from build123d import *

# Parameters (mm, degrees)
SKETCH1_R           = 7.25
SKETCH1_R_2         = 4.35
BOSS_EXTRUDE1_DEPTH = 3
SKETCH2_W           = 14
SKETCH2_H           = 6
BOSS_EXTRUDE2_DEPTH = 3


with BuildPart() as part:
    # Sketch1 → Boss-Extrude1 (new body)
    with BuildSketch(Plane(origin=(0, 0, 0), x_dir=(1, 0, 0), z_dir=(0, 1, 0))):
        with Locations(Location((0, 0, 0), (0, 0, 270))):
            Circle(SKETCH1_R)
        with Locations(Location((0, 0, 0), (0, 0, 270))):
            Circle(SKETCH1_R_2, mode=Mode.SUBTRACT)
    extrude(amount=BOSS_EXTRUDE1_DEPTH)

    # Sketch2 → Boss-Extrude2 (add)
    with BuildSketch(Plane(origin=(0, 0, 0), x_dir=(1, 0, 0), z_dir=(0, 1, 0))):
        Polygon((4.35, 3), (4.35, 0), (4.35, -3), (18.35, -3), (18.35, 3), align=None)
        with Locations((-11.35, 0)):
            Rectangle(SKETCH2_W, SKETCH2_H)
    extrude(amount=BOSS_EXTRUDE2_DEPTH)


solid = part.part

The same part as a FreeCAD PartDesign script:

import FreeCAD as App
import Part
import Sketcher
Q = App.Units.Quantity

doc = App.newDocument("Part")
body = doc.addObject("PartDesign::Body", "Body")

# Sketch on XZ plane
sketch1 = body.newObject("Sketcher::SketchObject", "Sketch")
sketch1.AttachmentSupport = (doc.getObject("XZ_Plane"), [""])
sketch1.MapMode = "FlatFace"
sketch1.addGeometry([
    Part.Circle(App.Vector(0, 0, 0), App.Vector(0, 0, 1), 7.2),
    Part.Circle(App.Vector(0, 0, 0), App.Vector(0, 0, 1), 4.3),
], False)
sketch1.addConstraint([
    Sketcher.Constraint("Coincident", 0, 3, -1, 1),
    Sketcher.Constraint("Coincident", 1, 3, -1, 1),
    Sketcher.Constraint("Diameter", 0, Q("14.5 mm")),
    Sketcher.Constraint("Diameter", 1, Q("8.7 mm")),
])
pad1 = body.newObject("PartDesign::Pad", "Pad")
pad1.Profile = sketch1
pad1.Length = 3
pad1.Reversed = True

# Sketch on XZ plane
sketch2 = body.newObject("Sketcher::SketchObject", "Sketch001")
sketch2.AttachmentSupport = (doc.getObject("XZ_Plane"), [""])
sketch2.MapMode = "FlatFace"
sketch2.addGeometry([
    Part.LineSegment(App.Vector(4, -3, 0), App.Vector(4, 3, 0)),  # 0
    Part.LineSegment(App.Vector(4, 3, 0), App.Vector(18, 3, 0)),  # 1
    Part.LineSegment(App.Vector(18, 3, 0), App.Vector(18, -3, 0)),  # 2
    Part.LineSegment(App.Vector(18, -3, 0), App.Vector(4, -3, 0)),  # 3
    Part.LineSegment(App.Vector(-18, -3, 0), App.Vector(-18, 3, 0)),  # 4
    Part.LineSegment(App.Vector(-18, 3, 0), App.Vector(-4, 3, 0)),  # 5
    Part.LineSegment(App.Vector(-4, 3, 0), App.Vector(-4, -3, 0)),  # 6
    Part.LineSegment(App.Vector(-4, -3, 0), App.Vector(-18, -3, 0)),  # 7
], False)
sketch2.addConstraint([
    Sketcher.Constraint("Coincident", 0, 2, 1, 1),
    Sketcher.Constraint("Coincident", 1, 2, 2, 1),
    Sketcher.Constraint("Coincident", 2, 2, 3, 1),
    Sketcher.Constraint("Coincident", 3, 2, 0, 1),
    Sketcher.Constraint("Coincident", 4, 2, 5, 1),
    Sketcher.Constraint("Coincident", 5, 2, 6, 1),
    Sketcher.Constraint("Coincident", 6, 2, 7, 1),
    Sketcher.Constraint("Coincident", 7, 2, 4, 1),
    Sketcher.Constraint("Vertical", 0),
    Sketcher.Constraint("Horizontal", 1),
    Sketcher.Constraint("Vertical", 2),
    Sketcher.Constraint("Horizontal", 3),
    Sketcher.Constraint("Vertical", 4),
    Sketcher.Constraint("Horizontal", 5),
    Sketcher.Constraint("Vertical", 6),
    Sketcher.Constraint("Horizontal", 7),
    Sketcher.Constraint("Symmetric", 2, 2, 4, 2, -1, 1),
    Sketcher.Constraint("Symmetric", 0, 2, 6, 2, -1, 1),
    Sketcher.Constraint("Horizontal", 1, 2, 4, 2),
    Sketcher.Constraint("DistanceX", 1, 1, 1, 2, Q("14 mm")),
    Sketcher.Constraint("DistanceY", 0, 1, 0, 2, Q("6 mm")),
    Sketcher.Constraint("DistanceX", 4, 2, 0, 2, Q("22.7 mm")),
])
pad2 = body.newObject("PartDesign::Pad", "Pad001")
pad2.Profile = sketch2
pad2.Length = 3
pad2.Reversed = True

doc.recompute()
